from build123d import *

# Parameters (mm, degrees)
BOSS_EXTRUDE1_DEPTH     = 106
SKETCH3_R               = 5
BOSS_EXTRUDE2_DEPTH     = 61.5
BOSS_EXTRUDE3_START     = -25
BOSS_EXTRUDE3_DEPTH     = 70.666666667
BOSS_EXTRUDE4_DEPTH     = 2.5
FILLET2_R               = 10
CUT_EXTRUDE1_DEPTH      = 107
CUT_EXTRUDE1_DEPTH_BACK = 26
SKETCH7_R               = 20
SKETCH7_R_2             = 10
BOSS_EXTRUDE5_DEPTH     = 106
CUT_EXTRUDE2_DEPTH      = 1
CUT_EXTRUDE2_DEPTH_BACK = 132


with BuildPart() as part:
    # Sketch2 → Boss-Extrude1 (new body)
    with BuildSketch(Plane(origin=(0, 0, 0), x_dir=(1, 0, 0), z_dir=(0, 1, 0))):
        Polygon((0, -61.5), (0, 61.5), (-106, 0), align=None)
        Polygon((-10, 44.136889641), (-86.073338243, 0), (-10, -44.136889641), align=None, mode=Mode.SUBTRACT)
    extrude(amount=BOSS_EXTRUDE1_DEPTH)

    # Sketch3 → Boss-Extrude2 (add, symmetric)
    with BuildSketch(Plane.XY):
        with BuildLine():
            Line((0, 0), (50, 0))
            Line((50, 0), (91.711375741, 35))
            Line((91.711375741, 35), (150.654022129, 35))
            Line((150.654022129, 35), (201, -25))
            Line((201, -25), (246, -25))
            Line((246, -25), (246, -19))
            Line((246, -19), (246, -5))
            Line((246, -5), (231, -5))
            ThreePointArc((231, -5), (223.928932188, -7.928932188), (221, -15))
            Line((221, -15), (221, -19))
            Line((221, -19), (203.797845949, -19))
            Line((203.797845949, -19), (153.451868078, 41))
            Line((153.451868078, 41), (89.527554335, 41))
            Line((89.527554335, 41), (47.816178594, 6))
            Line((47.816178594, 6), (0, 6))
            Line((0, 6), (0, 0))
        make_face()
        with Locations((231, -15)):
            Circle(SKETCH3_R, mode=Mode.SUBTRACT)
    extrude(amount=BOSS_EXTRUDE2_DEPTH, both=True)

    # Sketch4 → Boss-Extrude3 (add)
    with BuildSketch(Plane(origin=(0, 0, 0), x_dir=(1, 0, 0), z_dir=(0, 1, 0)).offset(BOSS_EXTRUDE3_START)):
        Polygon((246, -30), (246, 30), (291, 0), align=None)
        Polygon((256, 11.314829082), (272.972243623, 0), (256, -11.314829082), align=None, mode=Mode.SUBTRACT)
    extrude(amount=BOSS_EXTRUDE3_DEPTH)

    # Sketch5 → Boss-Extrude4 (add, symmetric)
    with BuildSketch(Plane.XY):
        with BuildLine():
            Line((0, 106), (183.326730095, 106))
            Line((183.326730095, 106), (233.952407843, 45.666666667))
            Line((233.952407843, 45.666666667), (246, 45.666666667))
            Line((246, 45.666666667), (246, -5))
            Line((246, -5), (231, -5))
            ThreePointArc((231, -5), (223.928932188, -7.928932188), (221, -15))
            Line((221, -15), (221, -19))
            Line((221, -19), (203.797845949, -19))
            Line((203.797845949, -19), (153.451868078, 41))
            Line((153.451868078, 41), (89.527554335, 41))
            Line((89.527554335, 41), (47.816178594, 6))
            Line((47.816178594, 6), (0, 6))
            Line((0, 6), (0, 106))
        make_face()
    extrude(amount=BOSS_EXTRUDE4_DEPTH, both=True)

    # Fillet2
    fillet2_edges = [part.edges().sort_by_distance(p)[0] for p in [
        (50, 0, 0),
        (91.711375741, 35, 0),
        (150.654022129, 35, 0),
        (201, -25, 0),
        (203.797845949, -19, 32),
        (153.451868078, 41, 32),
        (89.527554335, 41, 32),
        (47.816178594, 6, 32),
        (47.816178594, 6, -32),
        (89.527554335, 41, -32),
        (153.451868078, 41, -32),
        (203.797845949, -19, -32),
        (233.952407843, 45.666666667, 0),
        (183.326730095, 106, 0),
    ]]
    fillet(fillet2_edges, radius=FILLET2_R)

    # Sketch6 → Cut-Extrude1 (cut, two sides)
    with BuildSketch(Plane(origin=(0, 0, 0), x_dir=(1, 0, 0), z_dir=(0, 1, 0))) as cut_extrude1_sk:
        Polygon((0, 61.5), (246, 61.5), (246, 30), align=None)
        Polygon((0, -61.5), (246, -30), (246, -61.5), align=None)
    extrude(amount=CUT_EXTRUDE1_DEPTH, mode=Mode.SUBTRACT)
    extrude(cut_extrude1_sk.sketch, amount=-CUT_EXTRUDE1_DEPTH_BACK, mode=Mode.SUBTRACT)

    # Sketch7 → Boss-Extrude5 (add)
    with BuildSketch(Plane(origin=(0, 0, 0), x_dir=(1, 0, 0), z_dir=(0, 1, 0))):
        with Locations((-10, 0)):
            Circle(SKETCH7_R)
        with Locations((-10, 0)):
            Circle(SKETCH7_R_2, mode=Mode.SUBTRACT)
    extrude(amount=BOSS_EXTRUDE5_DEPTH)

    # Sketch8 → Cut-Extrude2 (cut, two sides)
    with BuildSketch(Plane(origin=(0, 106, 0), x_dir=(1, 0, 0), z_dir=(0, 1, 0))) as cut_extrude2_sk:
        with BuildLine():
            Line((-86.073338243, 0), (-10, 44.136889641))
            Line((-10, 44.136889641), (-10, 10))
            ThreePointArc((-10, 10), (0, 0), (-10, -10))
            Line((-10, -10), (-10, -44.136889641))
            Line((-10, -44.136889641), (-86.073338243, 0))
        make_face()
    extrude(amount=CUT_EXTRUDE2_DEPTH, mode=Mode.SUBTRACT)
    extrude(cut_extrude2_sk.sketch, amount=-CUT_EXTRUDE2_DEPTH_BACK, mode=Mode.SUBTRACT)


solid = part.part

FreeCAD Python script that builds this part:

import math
import FreeCAD as App
import Part
import Sketcher
from FreeCAD import Vector
Q = App.Units.Quantity


def edges_at(feature, points):
    """Names of the edges that pass closest to the given points."""
    edges = feature.Shape.Edges
    near = lambda p: min(range(len(edges)), key=lambda i: edges[i].distToShape(Part.Vertex(*p))[0])
    return sorted({f"Edge{near(p) + 1}" for p in points})

doc = App.newDocument("Part")
params = doc.addObject("Spreadsheet::Sheet", "Params")
for row, (alias, value) in enumerate([
    ("sketch1_height", "123 mm"),
    ("pad1_length", "106 mm"),
    ("sketch2_diameter", "10 mm"),
    ("sketch2_radius", "10 mm"),
    ("sketch2_width", "50 mm"),
    ("sketch2_width2", "45 mm"),
    ("sketch2_width3", "15 mm"),
    ("pad2_length", "123 mm"),
    ("sketch3_height", "60 mm"),
    ("pad3_length", "70.666667 mm"),
    ("sketch4_radius", "10 mm"),
    ("sketch4_width", "15 mm"),
    ("sketch4_height", "100 mm"),
    ("sketch4_height2", "4 mm"),
    ("pad4_length", "5 mm"),
    ("fillet_radius", "10 mm"),
    ("sketch5_width", "246 mm"),
    ("sketch5_height", "31.5 mm"),
    ("sketch6_diameter", "40 mm"),
    ("sketch6_diameter2", "20 mm"),
    ("pad5_length", "106 mm"),
    ("sketch7_radius", "10 mm"),
], start=1):
    params.set(f"A{row}", alias)
    params.set(f"B{row}", "=" + value)
    params.setAlias(f"B{row}", alias)

body = doc.addObject("PartDesign::Body", "Body")

sketch1 = doc.addObject("Sketcher::SketchObject", "Sketch")
body.addObject(sketch1)
sketch1.AttachmentSupport = (doc.XZ_Plane, [""])
sketch1.MapMode = "FlatFace"
sketch1.addGeometry([
    Part.LineSegment(Vector(0, 62, 0), Vector(0, -62, 0)),
    Part.LineSegment(Vector(0, -62, 0), Vector(-106, 0, 0)),
    Part.LineSegment(Vector(-106, 0, 0), Vector(0, 62, 0)),
    Part.LineSegment(Vector(-86, 0, 0), Vector(-10, -44, 0)),
    Part.LineSegment(Vector(-10, -44, 0), Vector(-10, 44, 0)),
    Part.LineSegment(Vector(-10, 44, 0), Vector(-86, 0, 0)),
], False)
sketch1.addConstraint([
    Sketcher.Constraint("Coincident", 0, 2, 1, 1),
    Sketcher.Constraint("Coincident", 1, 2, 2, 1),
    Sketcher.Constraint("Coincident", 2, 2, 0, 1),
    Sketcher.Constraint("Coincident", 3, 2, 4, 1),
    Sketcher.Constraint("Coincident", 4, 2, 5, 1),
    Sketcher.Constraint("Coincident", 5, 2, 3, 1),
    Sketcher.Constraint("Vertical", 0),
    Sketcher.Constraint("Vertical", 4),
    Sketcher.Constraint("Symmetric", 0, 2, 2, 2, -1, 1),
    Sketcher.Constraint("PointOnObject", 1, 2, -1),
    Sketcher.Constraint("PointOnObject", 5, 2, -1),
    Sketcher.Constraint("Parallel", 1, 3),
    Sketcher.Constraint("Parallel", 2, 5),
    Sketcher.Constraint("DistanceY", 0, 2, 0, 1, 123.0),
    Sketcher.Constraint("DistanceX", 1, 2, -1, 1, 106.0),
    Sketcher.Constraint("DistanceX", 3, 2, -1, 1, 10.0),
    Sketcher.Constraint("DistanceY", 4, 1, 4, 2, 88.273779),
])
sketch1.setExpression("Constraints[13]", "Params.sketch1_height")
pad1 = doc.addObject("PartDesign::Pad", "Pad")
body.addObject(pad1)
pad1.Profile = sketch1
pad1.setExpression("Length", "Params.pad1_length")
pad1.Reversed = True

sketch2 = doc.addObject("Sketcher::SketchObject", "Sketch001")
body.addObject(sketch2)
sketch2.AttachmentSupport = (doc.XY_Plane, [""])
sketch2.MapMode = "FlatFace"
sketch2.addGeometry([
    Part.LineSegment(Vector(0, 0, 0), Vector(50, 0, 0)),
    Part.LineSegment(Vector(50, 0, 0), Vector(91.7, 35, 0)),
    Part.LineSegment(Vector(91.7, 35, 0), Vector(150.7, 35, 0)),
    Part.LineSegment(Vector(150.7, 35, 0), Vector(201, -25, 0)),
    Part.LineSegment(Vector(201, -25, 0), Vector(246, -25, 0)),
    Part.LineSegment(Vector(246, -25, 0), Vector(246, -5, 0)),
    Part.LineSegment(Vector(246, -5, 0), Vector(231, -5, 0)),
    Part.ArcOfCircle(Part.Circle(Vector(231, -15, 0), Vector(0, 0, 1), 10), math.radians(90), math.radians(180)),
    Part.LineSegment(Vector(221, -15, 0), Vector(221, -19, 0)),
    Part.LineSegment(Vector(221, -19, 0), Vector(203.8, -19, 0)),
    Part.LineSegment(Vector(203.8, -19, 0), Vector(153.5, 41, 0)),
    Part.LineSegment(Vector(153.5, 41, 0), Vector(89.5, 41, 0)),
    Part.LineSegment(Vector(89.5, 41, 0), Vector(47.8, 6, 0)),
    Part.LineSegment(Vector(47.8, 6, 0), Vector(0, 6, 0)),
    Part.LineSegment(Vector(0, 6, 0), Vector(0, 0, 0)),
    Part.Circle(Vector(231, -15, 0), Vector(0, 0, 1), 5),
], False)
sketch2.addConstraint([
    Sketcher.Constraint("Coincident", 0, 2, 1, 1),
    Sketcher.Constraint("Coincident", 1, 2, 2, 1),
    Sketcher.Constraint("Coincident", 2, 2, 3, 1),
    Sketcher.Constraint("Coincident", 3, 2, 4, 1),
    Sketcher.Constraint("Coincident", 4, 2, 5, 1),
    Sketcher.Constraint("Coincident", 5, 2, 6, 1),
    Sketcher.Constraint("Tangent", 6, 2, 7, 1),
    Sketcher.Constraint("Tangent", 7, 2, 8, 1),
    Sketcher.Constraint("Coincident", 8, 2, 9, 1),
    Sketcher.Constraint("Coincident", 9, 2, 10, 1),
    Sketcher.Constraint("Coincident", 10, 2, 11, 1),
    Sketcher.Constraint("Coincident", 11, 2, 12, 1),
    Sketcher.Constraint("Coincident", 12, 2, 13, 1),
    Sketcher.Constraint("Coincident", 13, 2, 14, 1),
    Sketcher.Constraint("Coincident", 14, 2, 0, 1),
    Sketcher.Constraint("Horizontal", 0),
    Sketcher.Constraint("Horizontal", 2),
    Sketcher.Constraint("Horizontal", 4),
    Sketcher.Constraint("Vertical", 5),
    Sketcher.Constraint("Horizontal", 6),
    Sketcher.Constraint("Vertical", 8),
    Sketcher.Constraint("Horizontal", 9),
    Sketcher.Constraint("Horizontal", 11),
    Sketcher.Constraint("Horizontal", 13),
    Sketcher.Constraint("Vertical", 14),
    Sketcher.Constraint("Coincident", 14, 2, -1, 1),
    Sketcher.Constraint("Coincident", 15, 3, 7, 3),
    Sketcher.Constraint("Perpendicular", 1, 3),
    Sketcher.Constraint("Parallel", 3, 10),
    Sketcher.Constraint("Perpendicular", 10, 12),
    Sketcher.Constraint("Equal", 3, 10),
    Sketcher.Constraint("Equal", 1, 12),
    Sketcher.Constraint("Diameter", 15, 10.0),
    Sketcher.Constraint("Radius", 7, 10.0),
    Sketcher.Constraint("DistanceX", 0, 1, 0, 2, 50.0),
    Sketcher.Constraint("DistanceX", 4, 1, 4, 2, 45.0),
    Sketcher.Constraint("DistanceX", 6, 2, 6, 1, 15.0),
    Sketcher.Constraint("DistanceY", 5, 1, 5, 2, 20.0),
    Sketcher.Constraint("DistanceY", 8, 2, 8, 1, 4.0),
    Sketcher.Constraint("Angle", 1, Q("40 deg")),
    Sketcher.Constraint("DistanceX", -1, 1, 7, 3, 231.0),
    Sketcher.Constraint("DistanceY", 7, 3, -1, 1, 15.0),
    Sketcher.Constraint("DistanceY", -1, 1, 1, 2, 35.0),
    Sketcher.Constraint("DistanceX", 13, 2, 13, 1, 47.816179),
    Sketcher.Constraint("DistanceX", 9, 2, 9, 1, 17.202154),
])
sketch2.setExpression("Constraints[32]", "Params.sketch2_diameter")
sketch2.setExpression("Constraints[33]", "Params.sketch2_radius")
sketch2.setExpression("Constraints[34]", "Params.sketch2_width")
sketch2.setExpression("Constraints[35]", "Params.sketch2_width2")
sketch2.setExpression("Constraints[36]", "Params.sketch2_width3")
pad2 = doc.addObject("PartDesign::Pad", "Pad001")
body.addObject(pad2)
pad2.Profile = sketch2
pad2.setExpression("Length", "Params.pad2_length")
pad2.Midplane = True

sketch3 = doc.addObject("Sketcher::SketchObject", "Sketch002")
body.addObject(sketch3)
sketch3.AttachmentSupport = (doc.XZ_Plane, [""])
sketch3.MapMode = "FlatFace"
sketch3.AttachmentOffset = App.Placement(Vector(0, 0, 25), App.Rotation())
sketch3.addGeometry([
    Part.LineSegment(Vector(246, -30, 0), Vector(246, 30, 0)),
    Part.LineSegment(Vector(246, 30, 0), Vector(291, 0, 0)),
    Part.LineSegment(Vector(291, 0, 0), Vector(246, -30, 0)),
    Part.LineSegment(Vector(256, -11, 0), Vector(273, 0, 0)),
    Part.LineSegment(Vector(273, 0, 0), Vector(256, 11, 0)),
    Part.LineSegment(Vector(256, 11, 0), Vector(256, -11, 0)),
], False)
sketch3.addConstraint([
    Sketcher.Constraint("Coincident", 0, 2, 1, 1),
    Sketcher.Constraint("Coincident", 1, 2, 2, 1),
    Sketcher.Constraint("Coincident", 2, 2, 0, 1),
    Sketcher.Constraint("Coincident", 3, 2, 4, 1),
    Sketcher.Constraint("Coincident", 4, 2, 5, 1),
    Sketcher.Constraint("Coincident", 5, 2, 3, 1),
    Sketcher.Constraint("Vertical", 0),
    Sketcher.Constraint("Vertical", 5),
    Sketcher.Constraint("PointOnObject", 1, 2, -1),
    Sketcher.Constraint("PointOnObject", 3, 2, -1),
    Sketcher.Constraint("Parallel", 2, 3),
    Sketcher.Constraint("Parallel", 1, 4),
    Sketcher.Constraint("Equal", 1, 2),
    Sketcher.Constraint("DistanceY", 0, 1, 0, 2, 60.0),
    Sketcher.Constraint("DistanceX", -1, 1, 0, 2, 246.0),
    Sketcher.Constraint("DistanceX", -1, 1, 1, 2, 291.0),
    Sketcher.Constraint("DistanceX", -1, 1, 4, 2, 256.0),
    Sketcher.Constraint("Distance", 3, 20.398098),
])
sketch3.setExpression("Constraints[13]", "Params.sketch3_height")
pad3 = doc.addObject("PartDesign::Pad", "Pad002")
body.addObject(pad3)
pad3.Profile = sketch3
pad3.setExpression("Length", "Params.pad3_length")
pad3.Reversed = True

sketch4 = doc.addObject("Sketcher::SketchObject", "Sketch003")
body.addObject(sketch4)
sketch4.AttachmentSupport = (doc.XY_Plane, [""])
sketch4.MapMode = "FlatFace"
sketch4.addGeometry([
    Part.LineSegment(Vector(183.3, 106, 0), Vector(0, 106, 0)),
    Part.LineSegment(Vector(0, 106, 0), Vector(0, 6, 0)),
    Part.LineSegment(Vector(0, 6, 0), Vector(47.8, 6, 0)),
    Part.LineSegment(Vector(47.8, 6, 0), Vector(89.5, 41, 0)),
    Part.LineSegment(Vector(89.5, 41, 0), Vector(153.5, 41, 0)),
    Part.LineSegment(Vector(153.5, 41, 0), Vector(203.8, -19, 0)),
    Part.LineSegment(Vector(203.8, -19, 0), Vector(221, -19, 0)),
    Part.LineSegment(Vector(221, -19, 0), Vector(221, -15, 0)),
    Part.ArcOfCircle(Part.Circle(Vector(231, -15, 0), Vector(0, 0, 1), 10), math.radians(90), math.radians(180)),
    Part.LineSegment(Vector(231, -5, 0), Vector(246, -5, 0)),
    Part.LineSegment(Vector(246, -5, 0), Vector(246, 45.7, 0)),
    Part.LineSegment(Vector(246, 45.7, 0), Vector(234, 45.7, 0)),
    Part.LineSegment(Vector(234, 45.7, 0), Vector(183.3, 106, 0)),
], False)
sketch4.addConstraint([
    Sketcher.Constraint("Coincident", 0, 2, 1, 1),
    Sketcher.Constraint("Coincident", 1, 2, 2, 1),
    Sketcher.Constraint("Coincident", 2, 2, 3, 1),
    Sketcher.Constraint("Coincident", 3, 2, 4, 1),
    Sketcher.Constraint("Coincident", 4, 2, 5, 1),
    Sketcher.Constraint("Coincident", 5, 2, 6, 1),
    Sketcher.Constraint("Coincident", 6, 2, 7, 1),
    Sketcher.Constraint("Tangent", 7, 2, 8, 2),
    Sketcher.Constraint("Tangent", 8, 1, 9, 1),
    Sketcher.Constraint("Coincident", 9, 2, 10, 1),
    Sketcher.Constraint("Coincident", 10, 2, 11, 1),
    Sketcher.Constraint("Coincident", 11, 2, 12, 1),
    Sketcher.Constraint("Coincident", 12, 2, 0, 1),
    Sketcher.Constraint("Horizontal", 0),
    Sketcher.Constraint("Vertical", 1),
    Sketcher.Constraint("Horizontal", 2),
    Sketcher.Constraint("Horizontal", 4),
    Sketcher.Constraint("Horizontal", 6),
    Sketcher.Constraint("Vertical", 7),
    Sketcher.Constraint("Horizontal", 9),
    Sketcher.Constraint("Vertical", 10),
    Sketcher.Constraint("Horizontal", 11),
    Sketcher.Constraint("PointOnObject", 0, 2, -2),
    Sketcher.Constraint("Perpendicular", 3, 5),
    Sketcher.Constraint("Parallel", 5, 12),
    Sketcher.Constraint("Radius", 8, 10.0),
    Sketcher.Constraint("DistanceX", 9, 1, 9, 2, 15.0),
    Sketcher.Constraint("DistanceY", 1, 2, 1, 1, 100.0),
    Sketcher.Constraint("DistanceY", 7, 1, 7, 2, 4.0),
    Sketcher.Constraint("Angle", 3, Q("40 deg")),
    Sketcher.Constraint("DistanceX", -1, 1, 8, 3, 231.0),
    Sketcher.Constraint("DistanceY", 8, 3, -1, 1, 15.0),
    Sketcher.Constraint("DistanceY", -1, 1, 0, 2, 106.0),
    Sketcher.Constraint("DistanceY", -1, 1, 3, 2, 41.0),
    Sketcher.Constraint("DistanceX", 0, 2, 0, 1, 183.32673),
    Sketcher.Constraint("DistanceX", 2, 1, 2, 2, 47.816179),
    Sketcher.Constraint("DistanceX", 4, 1, 4, 2, 63.924314),
    Sketcher.Constraint("DistanceX", 11, 2, 11, 1, 12.047592),
])
sketch4.setExpression("Constraints[25]", "Params.sketch4_radius")
sketch4.setExpression("Constraints[26]", "Params.sketch4_width")
sketch4.setExpression("Constraints[27]", "Params.sketch4_height")
sketch4.setExpression("Constraints[28]", "Params.sketch4_height2")
pad4 = doc.addObject("PartDesign::Pad", "Pad003")
body.addObject(pad4)
pad4.Profile = sketch4
pad4.setExpression("Length", "Params.pad4_length")
pad4.Midplane = True
doc.recompute()

fillet = doc.addObject("PartDesign::Fillet", "Fillet")
body.addObject(fillet)
fillet.Base = (pad4, edges_at(pad4, [
    (50, 0, 0),
    (91.711, 35, 0),
    (150.654, 35, 0),
    (201, -25, 0),
    (203.798, -19, 32),
    (153.452, 41, 32),
    (89.528, 41, 32),
    (47.816, 6, 32),
    (47.816, 6, -32),
    (89.528, 41, -32),
    (153.452, 41, -32),
    (203.798, -19, -32),
    (233.952, 45.667, 0),
    (183.327, 106, 0),
]))
fillet.setExpression("Radius", "Params.fillet_radius")

sketch5 = doc.addObject("Sketcher::SketchObject", "Sketch004")
body.addObject(sketch5)
sketch5.AttachmentSupport = (doc.XZ_Plane, [""])
sketch5.MapMode = "FlatFace"
sketch5.addGeometry([
    Part.LineSegment(Vector(246, -62, 0), Vector(0, -62, 0)),
    Part.LineSegment(Vector(0, -62, 0), Vector(246, -30, 0)),
    Part.LineSegment(Vector(246, -30, 0), Vector(246, -62, 0)),
    Part.LineSegment(Vector(246, 30, 0), Vector(0, 62, 0)),
    Part.LineSegment(Vector(0, 62, 0), Vector(246, 62, 0)),
    Part.LineSegment(Vector(246, 62, 0), Vector(246, 30, 0)),
], False)
sketch5.addConstraint([
    Sketcher.Constraint("Coincident", 0, 2, 1, 1),
    Sketcher.Constraint("Coincident", 1, 2, 2, 1),
    Sketcher.Constraint("Coincident", 2, 2, 0, 1),
    Sketcher.Constraint("Coincident", 3, 2, 4, 1),
    Sketcher.Constraint("Coincident", 4, 2, 5, 1),
    Sketcher.Constraint("Coincident", 5, 2, 3, 1),
    Sketcher.Constraint("Horizontal", 0),
    Sketcher.Constraint("Vertical", 2),
    Sketcher.Constraint("Horizontal", 4),
    Sketcher.Constraint("Vertical", 5),
    Sketcher.Constraint("Symmetric", 0, 2, 3, 2, -1, 1),
    Sketcher.Constraint("Symmetric", 1, 2, 5, 2, -1),
    Sketcher.Constraint("PointOnObject", 0, 2, -2),
    Sketcher.Constraint("DistanceX", 0, 2, 0, 1, 246.0),
    Sketcher.Constraint("DistanceY", 2, 2, 2, 1, 31.5),
    Sketcher.Constraint("DistanceY", 1, 2, -1, 1, 30.0),
])
sketch5.setExpression("Constraints[13]", "Params.sketch5_width")
sketch5.setExpression("Constraints[14]", "Params.sketch5_height")
pocket1 = doc.addObject("PartDesign::Pocket", "Pocket")
body.addObject(pocket1)
pocket1.Profile = sketch5
pocket1.Type = "ThroughAll"
pocket1.Midplane = True

sketch6 = doc.addObject("Sketcher::SketchObject", "Sketch005")
body.addObject(sketch6)
sketch6.AttachmentSupport = (doc.XZ_Plane, [""])
sketch6.MapMode = "FlatFace"
sketch6.addGeometry([
    Part.Circle(Vector(-10, 0, 0), Vector(0, 0, 1), 20),
    Part.Circle(Vector(-10, 0, 0), Vector(0, 0, 1), 10),
], False)
sketch6.addConstraint([
    Sketcher.Constraint("Coincident", 1, 3, 0, 3),
    Sketcher.Constraint("PointOnObject", 0, 3, -1),
    Sketcher.Constraint("Diameter", 0, 40.0),
    Sketcher.Constraint("Diameter", 1, 20.0),
    Sketcher.Constraint("DistanceX", 0, 3, -1, 1, 10.0),
])
sketch6.setExpression("Constraints[2]", "Params.sketch6_diameter")
sketch6.setExpression("Constraints[3]", "Params.sketch6_diameter2")
pad5 = doc.addObject("PartDesign::Pad", "Pad004")
body.addObject(pad5)
pad5.Profile = sketch6
pad5.setExpression("Length", "Params.pad5_length")
pad5.Reversed = True

sketch7 = doc.addObject("Sketcher::SketchObject", "Sketch006")
body.addObject(sketch7)
sketch7.AttachmentSupport = (doc.XZ_Plane, [""])
sketch7.MapMode = "FlatFace"
sketch7.AttachmentOffset = App.Placement(Vector(0, 0, -106), App.Rotation())
sketch7.addGeometry([
    Part.LineSegment(Vector(-10, -44, 0), Vector(-86, 0, 0)),
    Part.LineSegment(Vector(-86, 0, 0), Vector(-10, 44, 0)),
    Part.LineSegment(Vector(-10, 44, 0), Vector(-10, 10, 0)),
    Part.ArcOfCircle(Part.Circle(Vector(-10, 0, 0), Vector(0, 0, 1), 10), math.radians(-90), math.radians(90)),
    Part.LineSegment(Vector(-10, -10, 0), Vector(-10, -44, 0)),
], False)
sketch7.addConstraint([
    Sketcher.Constraint("Coincident", 0, 2, 1, 1),
    Sketcher.Constraint("Coincident", 1, 2, 2, 1),
    Sketcher.Constraint("Coincident", 2, 2, 3, 2),
    Sketcher.Constraint("Coincident", 3, 1, 4, 1),
    Sketcher.Constraint("Coincident", 4, 2, 0, 1),
    Sketcher.Constraint("Vertical", 2),
    Sketcher.Constraint("Vertical", 4),
    Sketcher.Constraint("Symmetric", 2, 2, 3, 1, -1),
    Sketcher.Constraint("PointOnObject", 0, 2, -1),
    Sketcher.Constraint("Vertical", 3, 3, 1, 2),
    Sketcher.Constraint("Equal", 2, 4),
    Sketcher.Constraint("Radius", 3, 10.0),
    Sketcher.Constraint("DistanceX", 3, 3, -1, 1, 10.0),
    Sketcher.Constraint("DistanceY", 2, 2, 2, 1, 34.13689),
    Sketcher.Constraint("DistanceX", 0, 2, -1, 1, 86.073338),
])
sketch7.setExpression("Constraints[11]", "Params.sketch7_radius")
pocket2 = doc.addObject("PartDesign::Pocket", "Pocket001")
body.addObject(pocket2)
pocket2.Profile = sketch7
pocket2.Type = "ThroughAll"
pocket2.Midplane = True

doc.recompute()
